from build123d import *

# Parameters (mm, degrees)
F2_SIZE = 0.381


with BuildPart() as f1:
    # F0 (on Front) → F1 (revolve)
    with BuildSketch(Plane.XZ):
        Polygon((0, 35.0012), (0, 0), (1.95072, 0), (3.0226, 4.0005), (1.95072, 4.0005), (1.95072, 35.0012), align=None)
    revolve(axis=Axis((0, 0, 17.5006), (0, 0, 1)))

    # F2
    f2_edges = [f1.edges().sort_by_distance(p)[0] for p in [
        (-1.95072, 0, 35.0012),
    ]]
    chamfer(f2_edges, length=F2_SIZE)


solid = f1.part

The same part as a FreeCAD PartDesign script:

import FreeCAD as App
import Part
import Sketcher
from FreeCAD import Vector
Q = App.Units.Quantity


def edges_at(feature, points):
    """Names of the edges that pass closest to the given points."""
    edges = feature.Shape.Edges
    near = lambda p: min(range(len(edges)), key=lambda i: edges[i].distToShape(Part.Vertex(*p))[0])
    return sorted({f"Edge{near(p) + 1}" for p in points})


def add_polygon(sketch, points):
    """Adds a closed chain of lines whose ends are joined by coincident constraints."""
    first, n = sketch.GeometryCount, len(points)
    for a, b in zip(points, points[1:] + points[:1]):
        sketch.addGeometry(Part.LineSegment(App.Vector(*a, 0), App.Vector(*b, 0)), False)
    for i in range(n):
        sketch.addConstraint(Sketcher.Constraint("Coincident", first + i, 2, first + (i + 1) % n, 1))

doc = App.newDocument("Part")
body = doc.addObject("PartDesign::Body", "Body")

sketch1 = body.newObject("Sketcher::SketchObject", "Sketch")
sketch1.AttachmentSupport = (doc.getObject("XZ_Plane"), [""])
sketch1.MapMode = "FlatFace"
add_polygon(sketch1, [(0, 35.0012), (0, 0), (1.95072, 0), (3.0226, 4.0005), (1.95072, 4.0005), (1.95072, 35.0012)])
sketch1.addConstraint(Sketcher.Constraint("Vertical", 0))
sketch1.addConstraint(Sketcher.Constraint("Horizontal", 1))
sketch1.addConstraint(Sketcher.Constraint("Horizontal", 3))
sketch1.addConstraint(Sketcher.Constraint("Vertical", 4))
sketch1.addConstraint(Sketcher.Constraint("Horizontal", 5))
sketch1.addConstraint(Sketcher.Constraint("Coincident", 0, 2, -1, 1))
sketch1.addConstraint(Sketcher.Constraint("Vertical", 1, 2, 3, 2))
sketch1.addConstraint(Sketcher.Constraint("DistanceY", 0, 2, 0, 1, Q("1.378 in")))
sketch1.addConstraint(Sketcher.Constraint("DistanceX", 1, 1, 1, 2, Q("0.0768 in")))
sketch1.addConstraint(Sketcher.Constraint("DistanceX", 3, 2, 3, 1, Q("0.0422 in")))
sketch1.addConstraint(Sketcher.Constraint("DistanceY", 4, 1, 4, 2, Q("1.2205 in")))
revolution = body.newObject("PartDesign::Revolution", "Revolution")
revolution.Profile = sketch1
revolution.ReferenceAxis = (sketch1, ["V_Axis"])
revolution.Angle = 360
doc.recompute()

chamfer = body.newObject("PartDesign::Chamfer", "Chamfer")
chamfer.Base = (revolution, edges_at(revolution, [(-1.951, 0, 35.001)]))
chamfer.Size = Q("0.015 in")

doc.recompute()
